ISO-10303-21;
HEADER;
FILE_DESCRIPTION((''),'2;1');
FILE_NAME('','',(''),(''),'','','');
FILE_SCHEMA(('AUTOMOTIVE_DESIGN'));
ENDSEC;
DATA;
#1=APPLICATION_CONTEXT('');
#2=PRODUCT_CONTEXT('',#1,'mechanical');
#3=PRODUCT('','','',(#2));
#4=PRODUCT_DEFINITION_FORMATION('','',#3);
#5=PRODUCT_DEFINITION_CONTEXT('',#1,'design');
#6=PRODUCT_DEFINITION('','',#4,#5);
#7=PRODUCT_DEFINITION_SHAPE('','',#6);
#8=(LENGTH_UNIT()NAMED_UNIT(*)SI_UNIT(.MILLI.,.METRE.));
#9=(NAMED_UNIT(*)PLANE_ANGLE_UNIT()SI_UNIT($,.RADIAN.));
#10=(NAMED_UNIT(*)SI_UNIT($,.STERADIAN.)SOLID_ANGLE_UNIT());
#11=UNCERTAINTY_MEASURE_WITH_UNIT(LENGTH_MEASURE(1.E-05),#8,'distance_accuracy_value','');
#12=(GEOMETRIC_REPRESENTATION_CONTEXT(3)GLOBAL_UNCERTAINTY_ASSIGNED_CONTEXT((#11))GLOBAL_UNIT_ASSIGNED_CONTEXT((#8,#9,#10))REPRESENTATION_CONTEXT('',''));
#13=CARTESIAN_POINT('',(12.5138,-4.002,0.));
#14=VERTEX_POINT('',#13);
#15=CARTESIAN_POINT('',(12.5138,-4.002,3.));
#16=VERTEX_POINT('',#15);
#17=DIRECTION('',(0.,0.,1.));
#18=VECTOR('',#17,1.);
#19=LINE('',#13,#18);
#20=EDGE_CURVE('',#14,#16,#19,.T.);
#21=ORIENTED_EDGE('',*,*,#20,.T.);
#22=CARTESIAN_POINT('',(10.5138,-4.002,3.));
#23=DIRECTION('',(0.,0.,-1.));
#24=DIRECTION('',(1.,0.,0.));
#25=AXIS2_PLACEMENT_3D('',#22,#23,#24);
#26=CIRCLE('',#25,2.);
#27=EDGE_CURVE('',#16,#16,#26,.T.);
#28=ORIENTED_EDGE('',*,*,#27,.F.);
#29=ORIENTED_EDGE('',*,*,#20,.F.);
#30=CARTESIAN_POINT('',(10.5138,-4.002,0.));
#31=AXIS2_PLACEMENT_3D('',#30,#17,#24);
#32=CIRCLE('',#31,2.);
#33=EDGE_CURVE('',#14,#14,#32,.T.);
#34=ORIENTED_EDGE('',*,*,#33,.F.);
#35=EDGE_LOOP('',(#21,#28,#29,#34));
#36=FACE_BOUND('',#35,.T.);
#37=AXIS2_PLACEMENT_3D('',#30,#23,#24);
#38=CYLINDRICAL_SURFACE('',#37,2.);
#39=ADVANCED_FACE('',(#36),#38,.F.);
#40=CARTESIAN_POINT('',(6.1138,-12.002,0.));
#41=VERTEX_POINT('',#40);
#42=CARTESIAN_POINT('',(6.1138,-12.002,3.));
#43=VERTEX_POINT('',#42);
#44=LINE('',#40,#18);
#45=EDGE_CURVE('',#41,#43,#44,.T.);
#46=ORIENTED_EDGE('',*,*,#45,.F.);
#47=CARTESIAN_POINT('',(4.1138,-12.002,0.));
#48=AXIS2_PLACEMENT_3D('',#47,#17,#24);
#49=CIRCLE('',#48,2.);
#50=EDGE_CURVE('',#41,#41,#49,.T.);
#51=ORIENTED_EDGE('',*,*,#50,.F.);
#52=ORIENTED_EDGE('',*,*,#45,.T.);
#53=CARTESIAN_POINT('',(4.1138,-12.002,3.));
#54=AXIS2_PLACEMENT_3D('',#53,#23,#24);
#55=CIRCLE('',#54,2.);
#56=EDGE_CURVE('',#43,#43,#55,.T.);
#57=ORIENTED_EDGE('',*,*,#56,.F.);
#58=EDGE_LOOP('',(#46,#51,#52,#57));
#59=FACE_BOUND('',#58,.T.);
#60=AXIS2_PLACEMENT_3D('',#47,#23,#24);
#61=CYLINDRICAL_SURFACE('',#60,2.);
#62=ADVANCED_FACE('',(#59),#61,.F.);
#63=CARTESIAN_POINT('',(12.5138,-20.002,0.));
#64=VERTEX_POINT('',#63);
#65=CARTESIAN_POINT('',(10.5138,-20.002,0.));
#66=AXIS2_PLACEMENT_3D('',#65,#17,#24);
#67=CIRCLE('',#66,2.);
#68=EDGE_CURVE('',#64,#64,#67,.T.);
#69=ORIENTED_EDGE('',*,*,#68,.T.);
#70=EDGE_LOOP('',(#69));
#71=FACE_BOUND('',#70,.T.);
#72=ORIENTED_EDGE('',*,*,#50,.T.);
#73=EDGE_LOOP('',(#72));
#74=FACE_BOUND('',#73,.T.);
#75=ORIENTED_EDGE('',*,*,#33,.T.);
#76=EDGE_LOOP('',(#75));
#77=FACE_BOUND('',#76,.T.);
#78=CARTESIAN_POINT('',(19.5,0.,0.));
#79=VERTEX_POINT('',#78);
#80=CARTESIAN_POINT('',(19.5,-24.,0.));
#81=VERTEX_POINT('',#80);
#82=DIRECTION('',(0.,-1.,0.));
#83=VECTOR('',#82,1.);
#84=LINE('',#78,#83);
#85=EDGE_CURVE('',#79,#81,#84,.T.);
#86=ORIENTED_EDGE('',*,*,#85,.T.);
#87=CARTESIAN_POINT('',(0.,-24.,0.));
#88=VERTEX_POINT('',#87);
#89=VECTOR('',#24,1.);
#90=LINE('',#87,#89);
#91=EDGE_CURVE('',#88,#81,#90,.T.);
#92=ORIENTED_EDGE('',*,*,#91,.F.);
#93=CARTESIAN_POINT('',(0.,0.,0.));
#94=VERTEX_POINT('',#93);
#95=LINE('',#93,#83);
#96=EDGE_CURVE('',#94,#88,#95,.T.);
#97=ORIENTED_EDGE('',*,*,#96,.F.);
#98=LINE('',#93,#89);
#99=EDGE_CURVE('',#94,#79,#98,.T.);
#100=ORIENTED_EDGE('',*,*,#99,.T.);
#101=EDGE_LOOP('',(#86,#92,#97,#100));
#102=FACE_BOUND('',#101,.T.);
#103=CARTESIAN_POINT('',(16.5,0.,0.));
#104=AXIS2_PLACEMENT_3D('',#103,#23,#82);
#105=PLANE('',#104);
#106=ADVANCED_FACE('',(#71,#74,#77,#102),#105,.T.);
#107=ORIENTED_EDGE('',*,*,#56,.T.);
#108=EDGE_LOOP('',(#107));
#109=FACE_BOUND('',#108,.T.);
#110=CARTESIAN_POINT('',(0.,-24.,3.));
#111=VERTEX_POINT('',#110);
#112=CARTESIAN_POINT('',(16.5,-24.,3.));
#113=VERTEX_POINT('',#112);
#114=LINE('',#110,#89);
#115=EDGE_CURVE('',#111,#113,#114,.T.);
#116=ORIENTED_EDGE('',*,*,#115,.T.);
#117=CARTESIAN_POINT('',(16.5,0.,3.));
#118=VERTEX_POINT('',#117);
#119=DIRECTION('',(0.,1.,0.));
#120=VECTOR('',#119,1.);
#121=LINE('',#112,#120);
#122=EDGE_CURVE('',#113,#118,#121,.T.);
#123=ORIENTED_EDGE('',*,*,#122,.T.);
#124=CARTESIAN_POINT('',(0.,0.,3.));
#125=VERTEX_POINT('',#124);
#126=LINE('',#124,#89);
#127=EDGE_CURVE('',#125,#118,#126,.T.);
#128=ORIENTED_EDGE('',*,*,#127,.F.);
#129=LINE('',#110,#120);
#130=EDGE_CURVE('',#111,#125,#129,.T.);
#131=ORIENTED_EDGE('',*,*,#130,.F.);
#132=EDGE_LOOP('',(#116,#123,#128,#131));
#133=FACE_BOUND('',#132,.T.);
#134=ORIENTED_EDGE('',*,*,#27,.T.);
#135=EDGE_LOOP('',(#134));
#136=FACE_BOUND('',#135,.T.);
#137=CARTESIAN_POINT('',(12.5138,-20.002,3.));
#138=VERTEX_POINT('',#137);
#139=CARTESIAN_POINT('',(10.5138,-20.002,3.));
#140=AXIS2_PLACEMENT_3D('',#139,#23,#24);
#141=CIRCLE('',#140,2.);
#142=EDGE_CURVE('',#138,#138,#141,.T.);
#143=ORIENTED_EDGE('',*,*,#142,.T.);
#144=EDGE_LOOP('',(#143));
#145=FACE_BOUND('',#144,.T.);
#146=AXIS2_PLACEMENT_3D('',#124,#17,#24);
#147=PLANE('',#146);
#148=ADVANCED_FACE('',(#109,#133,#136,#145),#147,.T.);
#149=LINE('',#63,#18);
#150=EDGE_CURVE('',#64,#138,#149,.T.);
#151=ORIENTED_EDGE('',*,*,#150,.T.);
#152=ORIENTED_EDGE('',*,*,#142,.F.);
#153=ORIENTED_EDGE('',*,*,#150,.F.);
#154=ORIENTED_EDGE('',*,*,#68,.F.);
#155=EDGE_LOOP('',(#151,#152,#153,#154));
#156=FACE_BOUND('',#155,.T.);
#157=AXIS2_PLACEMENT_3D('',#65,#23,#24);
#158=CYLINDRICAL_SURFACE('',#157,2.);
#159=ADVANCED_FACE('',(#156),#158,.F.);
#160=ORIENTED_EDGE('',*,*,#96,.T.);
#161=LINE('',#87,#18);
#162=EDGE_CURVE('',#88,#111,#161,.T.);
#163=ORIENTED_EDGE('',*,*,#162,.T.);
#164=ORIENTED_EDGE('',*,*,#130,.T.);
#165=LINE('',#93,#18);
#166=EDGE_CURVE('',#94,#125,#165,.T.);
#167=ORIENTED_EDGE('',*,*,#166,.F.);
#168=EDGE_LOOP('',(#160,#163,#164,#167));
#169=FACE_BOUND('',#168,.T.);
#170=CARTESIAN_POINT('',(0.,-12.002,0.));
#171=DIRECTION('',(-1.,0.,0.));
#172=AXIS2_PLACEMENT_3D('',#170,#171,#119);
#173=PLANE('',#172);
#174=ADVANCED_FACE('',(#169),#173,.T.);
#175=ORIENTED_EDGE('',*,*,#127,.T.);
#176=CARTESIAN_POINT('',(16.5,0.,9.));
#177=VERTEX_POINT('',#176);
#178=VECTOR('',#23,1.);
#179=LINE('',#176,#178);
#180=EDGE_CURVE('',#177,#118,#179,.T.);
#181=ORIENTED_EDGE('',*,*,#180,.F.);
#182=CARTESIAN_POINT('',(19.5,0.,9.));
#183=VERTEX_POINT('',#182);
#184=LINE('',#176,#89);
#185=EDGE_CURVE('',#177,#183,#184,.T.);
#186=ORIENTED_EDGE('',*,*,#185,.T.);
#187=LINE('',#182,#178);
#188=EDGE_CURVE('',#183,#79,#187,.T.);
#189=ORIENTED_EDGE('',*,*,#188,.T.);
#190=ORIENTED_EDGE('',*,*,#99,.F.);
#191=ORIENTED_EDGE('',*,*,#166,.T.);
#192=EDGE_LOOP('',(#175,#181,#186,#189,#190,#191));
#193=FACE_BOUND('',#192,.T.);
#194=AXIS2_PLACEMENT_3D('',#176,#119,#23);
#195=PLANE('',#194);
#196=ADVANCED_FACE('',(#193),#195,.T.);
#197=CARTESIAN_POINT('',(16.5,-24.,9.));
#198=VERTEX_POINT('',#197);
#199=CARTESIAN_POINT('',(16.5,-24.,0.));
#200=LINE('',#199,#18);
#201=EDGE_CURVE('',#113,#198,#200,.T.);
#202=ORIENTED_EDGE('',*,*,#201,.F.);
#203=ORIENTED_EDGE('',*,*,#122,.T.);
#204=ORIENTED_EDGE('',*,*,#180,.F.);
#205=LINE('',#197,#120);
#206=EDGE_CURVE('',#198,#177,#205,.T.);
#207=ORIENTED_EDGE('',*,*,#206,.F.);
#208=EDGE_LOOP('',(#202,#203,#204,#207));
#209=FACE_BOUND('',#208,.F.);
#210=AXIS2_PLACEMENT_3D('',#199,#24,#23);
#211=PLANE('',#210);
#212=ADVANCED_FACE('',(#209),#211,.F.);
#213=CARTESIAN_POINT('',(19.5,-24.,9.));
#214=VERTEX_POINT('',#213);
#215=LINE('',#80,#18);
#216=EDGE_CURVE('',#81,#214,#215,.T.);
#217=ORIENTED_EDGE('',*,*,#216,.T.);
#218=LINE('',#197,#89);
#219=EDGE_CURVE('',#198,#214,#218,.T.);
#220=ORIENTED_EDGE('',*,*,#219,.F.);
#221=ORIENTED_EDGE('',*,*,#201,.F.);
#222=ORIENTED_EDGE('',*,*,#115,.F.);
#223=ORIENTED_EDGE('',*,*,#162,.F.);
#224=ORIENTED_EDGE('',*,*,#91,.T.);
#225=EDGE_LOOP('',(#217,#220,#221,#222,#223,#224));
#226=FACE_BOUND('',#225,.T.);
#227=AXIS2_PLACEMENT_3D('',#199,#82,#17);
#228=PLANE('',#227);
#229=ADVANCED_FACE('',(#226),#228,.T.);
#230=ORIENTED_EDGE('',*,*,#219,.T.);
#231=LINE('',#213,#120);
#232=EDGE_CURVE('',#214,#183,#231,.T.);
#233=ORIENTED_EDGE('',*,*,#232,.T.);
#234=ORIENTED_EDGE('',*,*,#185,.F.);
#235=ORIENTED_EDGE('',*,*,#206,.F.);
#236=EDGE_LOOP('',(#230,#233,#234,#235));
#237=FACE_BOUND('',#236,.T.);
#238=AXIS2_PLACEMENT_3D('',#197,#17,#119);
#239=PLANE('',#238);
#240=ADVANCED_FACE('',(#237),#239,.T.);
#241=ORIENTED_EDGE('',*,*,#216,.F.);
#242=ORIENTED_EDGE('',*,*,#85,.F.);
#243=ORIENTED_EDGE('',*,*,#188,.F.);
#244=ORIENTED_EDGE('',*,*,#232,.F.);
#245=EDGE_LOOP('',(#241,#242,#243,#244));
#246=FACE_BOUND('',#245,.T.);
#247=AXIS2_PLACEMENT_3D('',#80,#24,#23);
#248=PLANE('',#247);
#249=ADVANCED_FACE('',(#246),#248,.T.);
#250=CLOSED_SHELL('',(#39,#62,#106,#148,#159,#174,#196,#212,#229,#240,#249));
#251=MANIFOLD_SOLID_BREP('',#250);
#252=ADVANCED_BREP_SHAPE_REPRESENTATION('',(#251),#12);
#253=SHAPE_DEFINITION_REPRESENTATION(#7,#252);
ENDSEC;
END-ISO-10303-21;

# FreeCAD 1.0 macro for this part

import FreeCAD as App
import Part
import Sketcher

V = App.Vector
Q = App.Units.Quantity


def add_polygon(sketch, points):
    """Adds a closed chain of lines whose ends are joined by coincident constraints."""
    first, n = sketch.GeometryCount, len(points)
    for a, b in zip(points, points[1:] + points[:1]):
        sketch.addGeometry(Part.LineSegment(App.Vector(*a, 0), App.Vector(*b, 0)), False)
    for i in range(n):
        sketch.addConstraint(Sketcher.Constraint("Coincident", first + i, 2, first + (i + 1) % n, 1))

doc = App.newDocument("Part")
params = doc.addObject("Spreadsheet::Sheet", "Params")
for row, (alias, value) in enumerate([
    ("sketch1_diameter", "4 mm"),
    ("sketch1_height", "24 mm"),
    ("sketch1_width", "16.5 mm"),
    ("pad1_length", "3 mm"),
    ("sketch2_height", "9 mm"),
    ("sketch2_width", "24 mm"),
    ("pad2_length", "3 mm"),
], start=1):
    params.set(f"A{row}", alias)
    params.set(f"B{row}", "=" + value)
    params.setAlias(f"B{row}", alias)

body = doc.addObject("PartDesign::Body", "Body")

# Sketch on XY plane
sketch1 = doc.addObject("Sketcher::SketchObject", "Sketch")
body.addObject(sketch1)
sketch1.AttachmentSupport = (doc.XY_Plane, [""])
sketch1.MapMode = "FlatFace"
add_polygon(sketch1, [(0, 0), (0, -24), (16.5, -24), (16.5, 0)])  # lines 0-3
sketch1.addGeometry(Part.Circle(V(10.5138, -4.002, 0), V(0, 0, 1), 2), False)  # 4
sketch1.addGeometry(Part.Circle(V(4.1138, -12.002, 0), V(0, 0, 1), 2), False)  # 5
sketch1.addGeometry(Part.Circle(V(10.5138, -20.002, 0), V(0, 0, 1), 2), False)  # 6
sketch1.addConstraint([
    Sketcher.Constraint("Vertical", 0),
    Sketcher.Constraint("Horizontal", 1),
    Sketcher.Constraint("Vertical", 2),
    Sketcher.Constraint("Horizontal", 3),
    Sketcher.Constraint("Coincident", 3, 2, -1, 1),
    Sketcher.Constraint("Equal", 4, 5),
    Sketcher.Constraint("Equal", 5, 6),
    Sketcher.Constraint("Vertical", 4, 3, 6, 3),
    Sketcher.Constraint("Diameter", 4, Q("4 mm")),
    Sketcher.Constraint("DistanceY", 0, 2, 0, 1, Q("24 mm")),
    Sketcher.Constraint("DistanceX", 1, 1, 1, 2, Q("16.5 mm")),
    Sketcher.Constraint("DistanceY", 5, 3, 4, 3, Q("8 mm")),
    Sketcher.Constraint("DistanceY", 6, 3, 5, 3, Q("8 mm")),
    Sketcher.Constraint("DistanceX", 5, 3, 4, 3, Q("6.4 mm")),
    Sketcher.Constraint("DistanceY", 4, 3, -1, 1, Q("4.002 mm")),
    Sketcher.Constraint("DistanceX", -1, 1, 4, 3, Q("10.5138 mm")),
])
sketch1.setExpression("Constraints[12]", "Params.sketch1_diameter")
sketch1.setExpression("Constraints[13]", "Params.sketch1_height")
sketch1.setExpression("Constraints[14]", "Params.sketch1_width")
pad1 = doc.addObject("PartDesign::Pad", "Pad")
body.addObject(pad1)
pad1.Profile = sketch1
pad1.setExpression("Length", "Params.pad1_length")

# Sketch on YZ plane
sketch2 = doc.addObject("Sketcher::SketchObject", "Sketch001")
body.addObject(sketch2)
sketch2.AttachmentSupport = (doc.YZ_Plane, [""])
sketch2.MapMode = "FlatFace"
sketch2.AttachmentOffset = App.Placement(V(0, 0, 16.5), App.Rotation())
add_polygon(sketch2, [(-24, 9), (-24, 0), (0, 0), (0, 9)])  # lines 0-3
sketch2.addConstraint([
    Sketcher.Constraint("Vertical", 0),
    Sketcher.Constraint("Horizontal", 1),
    Sketcher.Constraint("Vertical", 2),
    Sketcher.Constraint("Horizontal", 3),
    Sketcher.Constraint("Coincident", 1, 2, -1, 1),
    Sketcher.Constraint("DistanceY", 0, 2, 0, 1, Q("9 mm")),
    Sketcher.Constraint("DistanceX", 1, 1, 1, 2, Q("24 mm")),
])
sketch2.setExpression("Constraints[9]", "Params.sketch2_height")
sketch2.setExpression("Constraints[10]", "Params.sketch2_width")
pad2 = doc.addObject("PartDesign::Pad", "Pad001")
body.addObject(pad2)
pad2.Profile = sketch2
pad2.setExpression("Length", "Params.pad2_length")

doc.recompute()
